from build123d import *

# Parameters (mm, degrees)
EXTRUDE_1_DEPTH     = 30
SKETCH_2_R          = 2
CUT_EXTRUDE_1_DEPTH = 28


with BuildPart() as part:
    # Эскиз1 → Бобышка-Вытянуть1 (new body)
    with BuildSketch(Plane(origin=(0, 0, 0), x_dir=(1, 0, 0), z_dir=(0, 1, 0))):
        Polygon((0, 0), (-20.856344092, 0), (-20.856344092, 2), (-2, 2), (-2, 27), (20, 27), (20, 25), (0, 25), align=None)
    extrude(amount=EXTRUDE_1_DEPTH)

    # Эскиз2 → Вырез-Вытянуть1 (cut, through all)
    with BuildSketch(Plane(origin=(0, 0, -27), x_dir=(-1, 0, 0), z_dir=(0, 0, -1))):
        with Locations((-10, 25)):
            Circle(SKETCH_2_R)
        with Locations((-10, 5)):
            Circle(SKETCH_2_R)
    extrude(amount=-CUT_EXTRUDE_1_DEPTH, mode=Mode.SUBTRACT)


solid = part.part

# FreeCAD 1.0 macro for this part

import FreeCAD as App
import Part
import Sketcher

doc = App.newDocument("Part")
body = doc.addObject("PartDesign::Body", "Body")

sketch1 = doc.addObject("Sketcher::SketchObject", "Sketch")
body.addObject(sketch1)
sketch1.AttachmentSupport = (doc.XZ_Plane, [""])
sketch1.MapMode = "FlatFace"
sketch1.addGeometry(Part.LineSegment(App.Vector(-20.9, 0, 0), App.Vector(0, 0, 0)), False)
sketch1.addGeometry(Part.LineSegment(App.Vector(0, 0, 0), App.Vector(0, -25, 0)), False)
sketch1.addGeometry(Part.LineSegment(App.Vector(0, -25, 0), App.Vector(20, -25, 0)), False)
sketch1.addGeometry(Part.LineSegment(App.Vector(20, -25, 0), App.Vector(20, -27, 0)), False)
sketch1.addGeometry(Part.LineSegment(App.Vector(20, -27, 0), App.Vector(-2, -27, 0)), False)
sketch1.addGeometry(Part.LineSegment(App.Vector(-2, -27, 0), App.Vector(-2, -2, 0)), False)
sketch1.addGeometry(Part.LineSegment(App.Vector(-2, -2, 0), App.Vector(-20.9, -2, 0)), False)
sketch1.addGeometry(Part.LineSegment(App.Vector(-20.9, -2, 0), App.Vector(-20.9, 0, 0)), False)
sketch1.addConstraint(Sketcher.Constraint("Coincident", 0, 2, 1, 1))
sketch1.addConstraint(Sketcher.Constraint("Coincident", 1, 2, 2, 1))
sketch1.addConstraint(Sketcher.Constraint("Coincident", 2, 2, 3, 1))
sketch1.addConstraint(Sketcher.Constraint("Coincident", 3, 2, 4, 1))
sketch1.addConstraint(Sketcher.Constraint("Coincident", 4, 2, 5, 1))
sketch1.addConstraint(Sketcher.Constraint("Coincident", 5, 2, 6, 1))
sketch1.addConstraint(Sketcher.Constraint("Coincident", 6, 2, 7, 1))
sketch1.addConstraint(Sketcher.Constraint("Coincident", 7, 2, 0, 1))
sketch1.addConstraint(Sketcher.Constraint("Horizontal", 0))
sketch1.addConstraint(Sketcher.Constraint("Vertical", 1))
sketch1.addConstraint(Sketcher.Constraint("Horizontal", 2))
sketch1.addConstraint(Sketcher.Constraint("Vertical", 3))
sketch1.addConstraint(Sketcher.Constraint("Horizontal", 4))
sketch1.addConstraint(Sketcher.Constraint("Vertical", 5))
sketch1.addConstraint(Sketcher.Constraint("Horizontal", 6))
sketch1.addConstraint(Sketcher.Constraint("Vertical", 7))
sketch1.addConstraint(Sketcher.Constraint("Coincident", 0, 2, -1, 1))
sketch1.addConstraint(Sketcher.Constraint("Equal", 1, 5))
sketch1.addConstraint(Sketcher.Constraint("DistanceX", 2, 1, 2, 2, 20.0))
sketch1.addConstraint(Sketcher.Constraint("DistanceX", 4, 2, 4, 1, 22.0))
sketch1.addConstraint(Sketcher.Constraint("DistanceY", 1, 2, 1, 1, 25.0))
sketch1.addConstraint(Sketcher.Constraint("DistanceY", 3, 2, 3, 1, 2.0))
sketch1.addConstraint(Sketcher.Constraint("DistanceX", 0, 1, 0, 2, 20.856344))
pad1 = doc.addObject("PartDesign::Pad", "Pad")
body.addObject(pad1)
pad1.Profile = sketch1
pad1.Length = 30
pad1.Reversed = True

sketch2 = doc.addObject("Sketcher::SketchObject", "Sketch001")
body.addObject(sketch2)
sketch2.AttachmentSupport = (doc.XY_Plane, [""])
sketch2.MapMode = "FlatFace"
sketch2.AttachmentOffset = App.Placement(App.Vector(0, 0, -27), App.Rotation())
sketch2.addGeometry(Part.Circle(App.Vector(10, 25, 0), App.Vector(0, 0, 1), 2), False)
sketch2.addGeometry(Part.Circle(App.Vector(10, 5, 0), App.Vector(0, 0, 1), 2), False)
sketch2.addConstraint(Sketcher.Constraint("Equal", 0, 1))
sketch2.addConstraint(Sketcher.Constraint("Vertical", 0, 3, 1, 3))
sketch2.addConstraint(Sketcher.Constraint("Diameter", 0, 4.0))
sketch2.addConstraint(Sketcher.Constraint("DistanceX", -1, 1, 0, 3, 10.0))
sketch2.addConstraint(Sketcher.Constraint("DistanceY", -1, 1, 0, 3, 25.0))
sketch2.addConstraint(Sketcher.Constraint("DistanceY", -1, 1, 1, 3, 5.0))
pocket1 = doc.addObject("PartDesign::Pocket", "Pocket")
body.addObject(pocket1)
pocket1.Profile = sketch2
pocket1.Type = "ThroughAll"
pocket1.Reversed = True

doc.recompute()
